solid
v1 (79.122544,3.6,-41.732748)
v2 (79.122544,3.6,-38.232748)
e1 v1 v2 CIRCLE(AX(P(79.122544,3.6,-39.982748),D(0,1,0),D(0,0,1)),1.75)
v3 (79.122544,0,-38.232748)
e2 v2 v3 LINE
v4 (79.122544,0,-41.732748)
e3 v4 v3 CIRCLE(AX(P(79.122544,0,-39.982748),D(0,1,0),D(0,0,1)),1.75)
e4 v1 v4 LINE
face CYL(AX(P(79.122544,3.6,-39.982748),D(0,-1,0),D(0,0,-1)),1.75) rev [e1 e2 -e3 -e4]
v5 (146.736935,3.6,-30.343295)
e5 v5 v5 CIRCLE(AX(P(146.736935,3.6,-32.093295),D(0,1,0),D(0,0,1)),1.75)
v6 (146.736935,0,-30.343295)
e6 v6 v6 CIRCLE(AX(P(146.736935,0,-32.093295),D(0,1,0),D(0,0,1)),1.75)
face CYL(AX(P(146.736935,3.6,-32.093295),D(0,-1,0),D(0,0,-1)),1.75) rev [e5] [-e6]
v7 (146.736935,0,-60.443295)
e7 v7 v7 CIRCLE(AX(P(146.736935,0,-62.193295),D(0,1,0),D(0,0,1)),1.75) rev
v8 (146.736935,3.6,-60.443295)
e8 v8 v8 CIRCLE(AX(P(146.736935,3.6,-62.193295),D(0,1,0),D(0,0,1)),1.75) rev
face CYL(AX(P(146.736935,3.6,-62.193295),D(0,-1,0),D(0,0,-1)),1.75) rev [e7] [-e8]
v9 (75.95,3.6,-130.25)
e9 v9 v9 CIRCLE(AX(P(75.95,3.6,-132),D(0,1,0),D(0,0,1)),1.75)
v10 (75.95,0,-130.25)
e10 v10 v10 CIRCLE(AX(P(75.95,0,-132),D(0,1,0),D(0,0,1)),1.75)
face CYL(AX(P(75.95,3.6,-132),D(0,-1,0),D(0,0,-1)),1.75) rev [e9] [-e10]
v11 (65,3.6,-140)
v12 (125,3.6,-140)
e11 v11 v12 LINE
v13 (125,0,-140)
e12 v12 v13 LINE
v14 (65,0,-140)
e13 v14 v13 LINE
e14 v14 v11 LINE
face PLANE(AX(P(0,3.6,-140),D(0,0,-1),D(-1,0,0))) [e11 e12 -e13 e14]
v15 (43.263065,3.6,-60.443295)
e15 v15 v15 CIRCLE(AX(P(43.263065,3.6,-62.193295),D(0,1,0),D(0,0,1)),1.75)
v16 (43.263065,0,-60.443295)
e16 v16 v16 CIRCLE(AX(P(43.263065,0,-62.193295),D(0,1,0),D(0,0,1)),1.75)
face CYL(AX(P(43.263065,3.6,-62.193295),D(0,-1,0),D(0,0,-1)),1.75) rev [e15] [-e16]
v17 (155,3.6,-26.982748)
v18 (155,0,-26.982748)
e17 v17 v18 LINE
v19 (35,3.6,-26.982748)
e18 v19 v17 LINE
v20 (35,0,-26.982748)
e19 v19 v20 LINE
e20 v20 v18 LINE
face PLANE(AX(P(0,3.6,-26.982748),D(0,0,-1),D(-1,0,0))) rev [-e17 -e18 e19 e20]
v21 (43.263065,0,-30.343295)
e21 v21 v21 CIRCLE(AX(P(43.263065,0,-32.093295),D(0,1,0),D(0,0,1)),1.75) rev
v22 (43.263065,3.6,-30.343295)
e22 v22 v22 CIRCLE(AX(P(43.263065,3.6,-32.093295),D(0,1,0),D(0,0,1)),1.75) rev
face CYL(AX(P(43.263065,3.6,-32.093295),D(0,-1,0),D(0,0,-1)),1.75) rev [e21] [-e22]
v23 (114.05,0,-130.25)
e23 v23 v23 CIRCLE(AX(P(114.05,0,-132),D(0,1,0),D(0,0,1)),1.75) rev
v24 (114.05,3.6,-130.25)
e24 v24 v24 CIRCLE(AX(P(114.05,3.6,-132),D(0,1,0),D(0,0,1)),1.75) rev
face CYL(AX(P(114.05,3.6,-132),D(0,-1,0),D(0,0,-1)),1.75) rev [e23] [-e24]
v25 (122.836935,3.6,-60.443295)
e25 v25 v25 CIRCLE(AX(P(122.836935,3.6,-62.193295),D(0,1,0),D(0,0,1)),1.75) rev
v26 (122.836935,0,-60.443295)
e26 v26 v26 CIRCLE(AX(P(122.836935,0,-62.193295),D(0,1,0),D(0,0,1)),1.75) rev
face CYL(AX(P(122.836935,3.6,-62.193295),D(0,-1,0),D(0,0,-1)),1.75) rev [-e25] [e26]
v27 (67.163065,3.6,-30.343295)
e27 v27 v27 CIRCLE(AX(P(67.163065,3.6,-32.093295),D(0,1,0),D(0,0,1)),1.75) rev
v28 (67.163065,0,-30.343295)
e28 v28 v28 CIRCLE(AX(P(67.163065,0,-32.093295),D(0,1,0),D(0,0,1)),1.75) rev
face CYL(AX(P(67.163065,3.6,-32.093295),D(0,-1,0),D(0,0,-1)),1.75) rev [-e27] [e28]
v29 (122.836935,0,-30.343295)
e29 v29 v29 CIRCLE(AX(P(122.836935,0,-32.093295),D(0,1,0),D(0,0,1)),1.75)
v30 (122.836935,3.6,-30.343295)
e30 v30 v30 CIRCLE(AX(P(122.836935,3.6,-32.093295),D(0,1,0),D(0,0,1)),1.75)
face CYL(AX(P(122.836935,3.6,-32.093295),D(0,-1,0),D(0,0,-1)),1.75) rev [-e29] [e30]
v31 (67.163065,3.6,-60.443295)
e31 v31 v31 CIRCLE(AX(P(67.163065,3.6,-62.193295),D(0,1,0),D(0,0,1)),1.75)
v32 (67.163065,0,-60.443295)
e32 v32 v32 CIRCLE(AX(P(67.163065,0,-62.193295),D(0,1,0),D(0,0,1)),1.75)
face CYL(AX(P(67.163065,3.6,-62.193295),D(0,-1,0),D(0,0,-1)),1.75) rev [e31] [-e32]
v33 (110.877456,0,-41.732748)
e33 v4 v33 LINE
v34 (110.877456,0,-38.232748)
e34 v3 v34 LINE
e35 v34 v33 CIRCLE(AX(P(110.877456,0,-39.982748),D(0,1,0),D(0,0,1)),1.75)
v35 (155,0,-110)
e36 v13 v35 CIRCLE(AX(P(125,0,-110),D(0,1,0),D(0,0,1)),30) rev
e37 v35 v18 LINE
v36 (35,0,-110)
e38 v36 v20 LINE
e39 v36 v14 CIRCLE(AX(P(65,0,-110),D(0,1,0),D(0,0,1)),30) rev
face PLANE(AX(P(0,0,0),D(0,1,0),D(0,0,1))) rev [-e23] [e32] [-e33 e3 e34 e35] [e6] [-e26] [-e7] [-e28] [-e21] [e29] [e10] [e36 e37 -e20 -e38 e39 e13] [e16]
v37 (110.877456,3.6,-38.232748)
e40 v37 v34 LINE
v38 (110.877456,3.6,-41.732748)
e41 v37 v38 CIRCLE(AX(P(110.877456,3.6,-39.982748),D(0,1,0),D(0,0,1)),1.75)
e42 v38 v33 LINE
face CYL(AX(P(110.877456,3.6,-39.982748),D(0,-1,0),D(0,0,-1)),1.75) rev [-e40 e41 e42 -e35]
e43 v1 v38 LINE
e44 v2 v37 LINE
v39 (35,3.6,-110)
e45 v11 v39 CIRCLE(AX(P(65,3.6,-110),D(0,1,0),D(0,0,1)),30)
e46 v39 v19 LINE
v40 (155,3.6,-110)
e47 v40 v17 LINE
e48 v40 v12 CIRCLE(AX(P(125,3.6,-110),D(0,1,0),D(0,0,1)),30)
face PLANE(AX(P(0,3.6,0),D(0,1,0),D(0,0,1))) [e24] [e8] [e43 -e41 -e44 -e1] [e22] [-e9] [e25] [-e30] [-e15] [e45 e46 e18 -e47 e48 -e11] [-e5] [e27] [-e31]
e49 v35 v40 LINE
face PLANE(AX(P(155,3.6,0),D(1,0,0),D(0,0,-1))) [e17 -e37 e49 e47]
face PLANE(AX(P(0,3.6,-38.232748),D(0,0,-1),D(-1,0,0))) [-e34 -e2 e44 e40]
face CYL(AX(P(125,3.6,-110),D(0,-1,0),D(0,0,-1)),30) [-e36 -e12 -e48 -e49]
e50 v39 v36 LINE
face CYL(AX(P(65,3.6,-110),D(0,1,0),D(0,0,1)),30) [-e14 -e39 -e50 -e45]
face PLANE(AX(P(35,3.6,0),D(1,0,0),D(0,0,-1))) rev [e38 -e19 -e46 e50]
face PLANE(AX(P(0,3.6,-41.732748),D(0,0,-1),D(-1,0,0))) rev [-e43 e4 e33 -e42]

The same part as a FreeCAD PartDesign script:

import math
import FreeCAD as App
import Part
import Sketcher

V = App.Vector


def edges_at(feature, points):
    """Names of the edges that pass closest to the given points."""
    edges = feature.Shape.Edges
    near = lambda p: min(range(len(edges)), key=lambda i: edges[i].distToShape(Part.Vertex(*p))[0])
    return sorted({f"Edge{near(p) + 1}" for p in points})

doc = App.newDocument("Part")
body = doc.addObject("PartDesign::Body", "Body")

# Sketch on XZ plane
sketch1 = body.newObject("Sketcher::SketchObject", "Sketch")
sketch1.AttachmentSupport = (doc.getObject("XZ_Plane"), [""])
sketch1.MapMode = "FlatFace"
sketch1.addGeometry([
    Part.LineSegment(V(35, -140, 0), V(35, -27, 0)),  # 0
    Part.LineSegment(V(35, -27, 0), V(155, -27, 0)),  # 1
    Part.LineSegment(V(155, -27, 0), V(155, -140, 0)),  # 2
    Part.LineSegment(V(155, -140, 0), V(35, -140, 0)),  # 3
    Part.Circle(V(43.3, -32.1, 0), V(0, 0, 1), 1.8),  # 4
    Part.Circle(V(67.2, -32.1, 0), V(0, 0, 1), 1.8),  # 5
    Part.LineSegment(V(110.9, -38.2, 0), V(79.1, -38.2, 0)),  # 6
    Part.ArcOfCircle(Part.Circle(V(79.1, -40, 0), V(0, 0, 1), 1.8), math.radians(90), math.radians(270)),  # 7
    Part.LineSegment(V(79.1, -41.7, 0), V(110.9, -41.7, 0)),  # 8
    Part.ArcOfCircle(Part.Circle(V(110.9, -40, 0), V(0, 0, 1), 1.8), math.radians(-90), math.radians(90)),  # 9
    Part.Circle(V(43.3, -62.2, 0), V(0, 0, 1), 1.8),  # 10
    Part.Circle(V(67.2, -62.2, 0), V(0, 0, 1), 1.8),  # 11
    Part.Circle(V(122.8, -32.1, 0), V(0, 0, 1), 1.8),  # 12
    Part.Circle(V(146.7, -32.1, 0), V(0, 0, 1), 1.8),  # 13
    Part.Circle(V(122.8, -62.2, 0), V(0, 0, 1), 1.8),  # 14
    Part.Circle(V(146.7, -62.2, 0), V(0, 0, 1), 1.8),  # 15
    Part.Circle(V(76, -132, 0), V(0, 0, 1), 1.8),  # 16
    Part.Circle(V(114, -132, 0), V(0, 0, 1), 1.8),  # 17
], False)
sketch1.addConstraint([
    Sketcher.Constraint("Coincident", 0, 2, 1, 1),
    Sketcher.Constraint("Coincident", 1, 2, 2, 1),
    Sketcher.Constraint("Coincident", 2, 2, 3, 1),
    Sketcher.Constraint("Coincident", 3, 2, 0, 1),
    Sketcher.Constraint("Tangent", 6, 2, 7, 1),
    Sketcher.Constraint("Tangent", 7, 2, 8, 1),
    Sketcher.Constraint("Tangent", 8, 2, 9, 1),
    Sketcher.Constraint("Tangent", 9, 2, 6, 1),
    Sketcher.Constraint("Vertical", 0),
    Sketcher.Constraint("Horizontal", 1),
    Sketcher.Constraint("Vertical", 2),
    Sketcher.Constraint("Horizontal", 3),
    Sketcher.Constraint("Horizontal", 6),
    Sketcher.Constraint("Horizontal", 8),
    Sketcher.Constraint("Equal", 4, 5),
    Sketcher.Constraint("Equal", 5, 7),
    Sketcher.Constraint("Equal", 9, 10),
    Sketcher.Constraint("Equal", 10, 11),
    Sketcher.Constraint("Equal", 11, 12),
    Sketcher.Constraint("Equal", 12, 13),
    Sketcher.Constraint("Equal", 13, 14),
    Sketcher.Constraint("Equal", 14, 15),
    Sketcher.Constraint("Equal", 15, 16),
    Sketcher.Constraint("Equal", 16, 17),
    Sketcher.Constraint("Horizontal", 4, 3, 5, 3),
    Sketcher.Constraint("Horizontal", 10, 3, 11, 3),
    Sketcher.Constraint("Horizontal", 5, 3, 12, 3),
    Sketcher.Constraint("Horizontal", 12, 3, 13, 3),
    Sketcher.Constraint("Horizontal", 11, 3, 14, 3),
    Sketcher.Constraint("Horizontal", 14, 3, 15, 3),
    Sketcher.Constraint("Horizontal", 16, 3, 17, 3),
    Sketcher.Constraint("Vertical", 4, 3, 10, 3),
    Sketcher.Constraint("Vertical", 5, 3, 11, 3),
    Sketcher.Constraint("Vertical", 12, 3, 14, 3),
    Sketcher.Constraint("Vertical", 13, 3, 15, 3),
    Sketcher.Constraint("Diameter", 4, 3.5),
    Sketcher.Constraint("DistanceX", 1, 1, 1, 2, 120.0),
    Sketcher.Constraint("DistanceY", 16, 3, -1, 1, 132.0),
    Sketcher.Constraint("DistanceX", -1, 1, 0, 2, 35.0),
    Sketcher.Constraint("DistanceY", 2, 2, -1, 1, 140.0),
    Sketcher.Constraint("DistanceY", 7, 3, 0, 2, 13.0),
    Sketcher.Constraint("DistanceX", 4, 3, 5, 3, 23.9),
    Sketcher.Constraint("DistanceY", 10, 3, 4, 3, 30.1),
    Sketcher.Constraint("DistanceX", 12, 3, 13, 3, 23.9),
    Sketcher.Constraint("DistanceX", 16, 3, 17, 3, 38.1),
    Sketcher.Constraint("DistanceX", -1, 1, 16, 3, 75.95),
    Sketcher.Constraint("DistanceX", 6, 2, 6, 1, 31.754912),
    Sketcher.Constraint("DistanceY", 0, 1, 0, 2, 113.017252),
    Sketcher.Constraint("DistanceX", 5, 3, 7, 3, 11.959479),
    Sketcher.Constraint("DistanceX", 9, 3, 12, 3, 11.959479),
    Sketcher.Constraint("DistanceX", -1, 1, 4, 3, 43.263065),
    Sketcher.Constraint("DistanceY", 4, 3, -1, 1, 32.093295),
])
pad1 = body.newObject("PartDesign::Pad", "Pad")
pad1.Profile = sketch1
pad1.Length = 3.6
pad1.Reversed = True
doc.recompute()

fillet = body.newObject("PartDesign::Fillet", "Fillet")
fillet.Base = (pad1, edges_at(pad1, [(35, 1.8, -140)]))
fillet.Radius = 30
doc.recompute()

fillet2 = body.newObject("PartDesign::Fillet", "Fillet001")
fillet2.Base = (fillet, edges_at(fillet, [(155, 1.8, -140)]))
fillet2.Radius = 30

doc.recompute()
